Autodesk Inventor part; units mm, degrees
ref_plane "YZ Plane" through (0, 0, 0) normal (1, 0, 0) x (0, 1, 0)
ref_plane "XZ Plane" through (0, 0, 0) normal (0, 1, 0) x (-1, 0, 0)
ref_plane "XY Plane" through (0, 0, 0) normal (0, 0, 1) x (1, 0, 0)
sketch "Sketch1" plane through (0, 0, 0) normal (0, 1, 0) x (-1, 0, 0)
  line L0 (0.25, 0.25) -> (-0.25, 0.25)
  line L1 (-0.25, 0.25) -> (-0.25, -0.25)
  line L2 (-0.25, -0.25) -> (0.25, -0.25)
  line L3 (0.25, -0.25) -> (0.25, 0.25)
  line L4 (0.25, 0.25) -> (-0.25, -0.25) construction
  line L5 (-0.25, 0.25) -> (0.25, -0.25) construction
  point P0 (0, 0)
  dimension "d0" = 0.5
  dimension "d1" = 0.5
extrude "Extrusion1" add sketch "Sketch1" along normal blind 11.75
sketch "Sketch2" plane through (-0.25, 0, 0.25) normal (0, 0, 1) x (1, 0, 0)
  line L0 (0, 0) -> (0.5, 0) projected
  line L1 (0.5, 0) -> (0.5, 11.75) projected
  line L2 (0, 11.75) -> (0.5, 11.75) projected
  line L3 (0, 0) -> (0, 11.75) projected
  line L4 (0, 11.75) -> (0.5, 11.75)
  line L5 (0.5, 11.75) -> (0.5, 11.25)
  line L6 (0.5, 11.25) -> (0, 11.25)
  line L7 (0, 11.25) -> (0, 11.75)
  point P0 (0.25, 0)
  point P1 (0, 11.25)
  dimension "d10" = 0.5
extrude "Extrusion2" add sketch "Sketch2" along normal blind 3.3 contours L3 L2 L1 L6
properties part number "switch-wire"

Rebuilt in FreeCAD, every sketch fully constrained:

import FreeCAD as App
import Part
import Sketcher
from FreeCAD import Vector
Q = App.Units.Quantity


def add_polygon(sketch, points):
    """Adds a closed chain of lines whose ends are joined by coincident constraints."""
    first, n = sketch.GeometryCount, len(points)
    for a, b in zip(points, points[1:] + points[:1]):
        sketch.addGeometry(Part.LineSegment(App.Vector(*a, 0), App.Vector(*b, 0)), False)
    for i in range(n):
        sketch.addConstraint(Sketcher.Constraint("Coincident", first + i, 2, first + (i + 1) % n, 1))

doc = App.newDocument("Part")
params = doc.addObject("Spreadsheet::Sheet", "Params")
for row, (alias, value) in enumerate([
    ("sketch1_width", "0.5 mm"),
    ("pad1_length", "11.75 mm"),
    ("sketch2_width", "0.5 mm"),
    ("pad2_length", "3.3 mm"),
], start=1):
    params.set(f"A{row}", alias)
    params.set(f"B{row}", "=" + value)
    params.setAlias(f"B{row}", alias)

body = doc.addObject("PartDesign::Body", "Body")

# Sketch on XZ plane
sketch1 = body.newObject("Sketcher::SketchObject", "Sketch")
sketch1.AttachmentSupport = (doc.getObject("XZ_Plane"), [""])
sketch1.MapMode = "FlatFace"
add_polygon(sketch1, [(-0.2, -0.2), (-0.2, 0.2), (0.2, 0.2), (0.2, -0.2)])  # lines 0-3
sketch1.addConstraint(Sketcher.Constraint("Vertical", 0))
sketch1.addConstraint(Sketcher.Constraint("Horizontal", 1))
sketch1.addConstraint(Sketcher.Constraint("Vertical", 2))
sketch1.addConstraint(Sketcher.Constraint("Horizontal", 3))
sketch1.addConstraint(Sketcher.Constraint("Symmetric", 0, 2, 2, 2, -1, 1))
sketch1.addConstraint(Sketcher.Constraint("Equal", 3, 0))
sketch1.addConstraint(Sketcher.Constraint("DistanceX", 1, 1, 1, 2, Q("0.5 mm")))
sketch1.setExpression("Constraints[10]", "Params.sketch1_width")
pad1 = body.newObject("PartDesign::Pad", "Pad")
pad1.Profile = sketch1
pad1.setExpression("Length", "Params.pad1_length")
pad1.Reversed = True

# Sketch on XY plane
sketch2 = body.newObject("Sketcher::SketchObject", "Sketch001")
sketch2.AttachmentSupport = (doc.getObject("XY_Plane"), [""])
sketch2.MapMode = "FlatFace"
sketch2.AttachmentOffset = App.Placement(Vector(0, 0, 0.25), App.Rotation())
add_polygon(sketch2, [(-0.2, 11.8), (-0.2, 11.2), (0.2, 11.2), (0.2, 11.8)])  # lines 0-3
sketch2.addConstraint(Sketcher.Constraint("Vertical", 0))
sketch2.addConstraint(Sketcher.Constraint("Horizontal", 1))
sketch2.addConstraint(Sketcher.Constraint("Vertical", 2))
sketch2.addConstraint(Sketcher.Constraint("Horizontal", 3))
sketch2.addConstraint(Sketcher.Constraint("Equal", 3, 0))
sketch2.addConstraint(Sketcher.Constraint("DistanceX", 1, 1, 1, 2, Q("0.5 mm")))
sketch2.addConstraint(Sketcher.Constraint("DistanceX", 0, 2, -1, 1, Q("0.25 mm")))
sketch2.addConstraint(Sketcher.Constraint("DistanceY", -1, 1, 0, 2, Q("11.25 mm")))
sketch2.setExpression("Constraints[9]", "Params.sketch2_width")
pad2 = body.newObject("PartDesign::Pad", "Pad001")
pad2.Profile = sketch2
pad2.setExpression("Length", "Params.pad2_length")

doc.recompute()
